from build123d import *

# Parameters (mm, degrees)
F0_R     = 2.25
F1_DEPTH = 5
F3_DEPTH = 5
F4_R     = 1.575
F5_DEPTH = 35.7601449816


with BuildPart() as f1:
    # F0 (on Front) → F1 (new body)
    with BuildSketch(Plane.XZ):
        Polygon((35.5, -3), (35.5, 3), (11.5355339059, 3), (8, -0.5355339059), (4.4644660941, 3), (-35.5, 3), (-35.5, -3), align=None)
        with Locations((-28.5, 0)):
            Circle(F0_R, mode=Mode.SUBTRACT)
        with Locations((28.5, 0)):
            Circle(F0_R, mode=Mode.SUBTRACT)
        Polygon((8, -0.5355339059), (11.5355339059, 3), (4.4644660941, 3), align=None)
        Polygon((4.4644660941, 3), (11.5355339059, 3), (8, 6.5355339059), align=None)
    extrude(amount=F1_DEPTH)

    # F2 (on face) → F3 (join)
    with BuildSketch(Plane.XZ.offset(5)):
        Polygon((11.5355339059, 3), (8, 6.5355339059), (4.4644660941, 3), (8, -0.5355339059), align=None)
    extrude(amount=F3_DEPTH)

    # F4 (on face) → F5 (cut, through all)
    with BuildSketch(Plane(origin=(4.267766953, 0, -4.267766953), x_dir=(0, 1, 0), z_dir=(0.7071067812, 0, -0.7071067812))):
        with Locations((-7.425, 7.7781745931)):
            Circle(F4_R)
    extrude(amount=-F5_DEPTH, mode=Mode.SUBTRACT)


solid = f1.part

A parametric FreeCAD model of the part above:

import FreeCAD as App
import Part
import Sketcher
from FreeCAD import Vector

doc = App.newDocument("Part")
body = doc.addObject("PartDesign::Body", "Body")

# Sketch on XZ plane
sketch1 = body.newObject("Sketcher::SketchObject", "Sketch")
sketch1.AttachmentSupport = (doc.getObject("XZ_Plane"), [""])
sketch1.MapMode = "FlatFace"
sketch1.addGeometry(Part.LineSegment(Vector(35.5, -3, 0), Vector(35.5, 3, 0)), False)
sketch1.addGeometry(Part.LineSegment(Vector(35.5, 3, 0), Vector(11.5, 3, 0)), False)
sketch1.addGeometry(Part.LineSegment(Vector(11.5, 3, 0), Vector(8, 6.5, 0)), False)
sketch1.addGeometry(Part.LineSegment(Vector(8, 6.5, 0), Vector(4.5, 3, 0)), False)
sketch1.addGeometry(Part.LineSegment(Vector(4.5, 3, 0), Vector(-35.5, 3, 0)), False)
sketch1.addGeometry(Part.LineSegment(Vector(-35.5, 3, 0), Vector(-35.5, -3, 0)), False)
sketch1.addGeometry(Part.LineSegment(Vector(-35.5, -3, 0), Vector(35.5, -3, 0)), False)
sketch1.addGeometry(Part.Circle(Vector(-28.5, 0, 0), Vector(0, 0, 1), 2.2), False)
sketch1.addGeometry(Part.Circle(Vector(28.5, 0, 0), Vector(0, 0, 1), 2.2), False)
sketch1.addConstraint(Sketcher.Constraint("Coincident", 0, 2, 1, 1))
sketch1.addConstraint(Sketcher.Constraint("Coincident", 1, 2, 2, 1))
sketch1.addConstraint(Sketcher.Constraint("Coincident", 2, 2, 3, 1))
sketch1.addConstraint(Sketcher.Constraint("Coincident", 3, 2, 4, 1))
sketch1.addConstraint(Sketcher.Constraint("Coincident", 4, 2, 5, 1))
sketch1.addConstraint(Sketcher.Constraint("Coincident", 5, 2, 6, 1))
sketch1.addConstraint(Sketcher.Constraint("Coincident", 6, 2, 0, 1))
sketch1.addConstraint(Sketcher.Constraint("Vertical", 0))
sketch1.addConstraint(Sketcher.Constraint("Horizontal", 1))
sketch1.addConstraint(Sketcher.Constraint("Horizontal", 4))
sketch1.addConstraint(Sketcher.Constraint("Vertical", 5))
sketch1.addConstraint(Sketcher.Constraint("Horizontal", 6))
sketch1.addConstraint(Sketcher.Constraint("Equal", 7, 8))
sketch1.addConstraint(Sketcher.Constraint("Symmetric", 7, 3, 8, 3, -1, 1))
sketch1.addConstraint(Sketcher.Constraint("Symmetric", 0, 2, 5, 2, -1, 1))
sketch1.addConstraint(Sketcher.Constraint("PointOnObject", 7, 3, -1))
sketch1.addConstraint(Sketcher.Constraint("Perpendicular", 2, 3))
sketch1.addConstraint(Sketcher.Constraint("Horizontal", 1, 2, 3, 2))
sketch1.addConstraint(Sketcher.Constraint("Equal", 2, 3))
sketch1.addConstraint(Sketcher.Constraint("Diameter", 7, 4.5))
sketch1.addConstraint(Sketcher.Constraint("DistanceX", 6, 1, 6, 2, 71.0))
sketch1.addConstraint(Sketcher.Constraint("DistanceY", 0, 1, 0, 2, 6.0))
sketch1.addConstraint(Sketcher.Constraint("Distance", 2, 5.0))
sketch1.addConstraint(Sketcher.Constraint("DistanceX", -1, 1, 2, 2, 8.0))
sketch1.addConstraint(Sketcher.Constraint("DistanceX", 7, 3, 8, 3, 57.0))
pad1 = body.newObject("PartDesign::Pad", "Pad")
pad1.Profile = sketch1
pad1.Length = 5

# Sketch on XZ plane
sketch2 = body.newObject("Sketcher::SketchObject", "Sketch001")
sketch2.AttachmentSupport = (doc.getObject("XZ_Plane"), [""])
sketch2.MapMode = "FlatFace"
sketch2.AttachmentOffset = App.Placement(Vector(0, 0, 5), App.Rotation())
sketch2.addGeometry(Part.LineSegment(Vector(12, 3, 0), Vector(8, 7, 0)), False)
sketch2.addGeometry(Part.LineSegment(Vector(8, 7, 0), Vector(4, 3, 0)), False)
sketch2.addGeometry(Part.LineSegment(Vector(4, 3, 0), Vector(8, -1, 0)), False)
sketch2.addGeometry(Part.LineSegment(Vector(8, -1, 0), Vector(12, 3, 0)), False)
sketch2.addConstraint(Sketcher.Constraint("Coincident", 0, 2, 1, 1))
sketch2.addConstraint(Sketcher.Constraint("Coincident", 1, 2, 2, 1))
sketch2.addConstraint(Sketcher.Constraint("Coincident", 2, 2, 3, 1))
sketch2.addConstraint(Sketcher.Constraint("Coincident", 3, 2, 0, 1))
sketch2.addConstraint(Sketcher.Constraint("Perpendicular", 0, 1))
sketch2.addConstraint(Sketcher.Constraint("Perpendicular", 1, 2))
sketch2.addConstraint(Sketcher.Constraint("Perpendicular", 2, 3))
sketch2.addConstraint(Sketcher.Constraint("Horizontal", 1, 2, 3, 2))
sketch2.addConstraint(Sketcher.Constraint("Vertical", 0, 2, 2, 2))
sketch2.addConstraint(Sketcher.Constraint("Distance", 0, 5.0))
sketch2.addConstraint(Sketcher.Constraint("DistanceX", -1, 1, 0, 2, 8.0))
sketch2.addConstraint(Sketcher.Constraint("DistanceY", -1, 1, 1, 2, 3.0))
pad2 = body.newObject("PartDesign::Pad", "Pad001")
pad2.Profile = sketch2
pad2.Length = 5

# Sketch on an angled plane
sketch3 = body.newObject("Sketcher::SketchObject", "Sketch002")
sketch3.Placement = App.Placement(Vector(4.267767, 0, -4.267767), App.Rotation(Vector(0, 1, 0), Vector(0.707106781, 0, 0.707106781), Vector(0.707106781, 0, -0.707106781), "ZXY"))
sketch3.addGeometry(Part.Circle(Vector(-7.4, 7.8, 0), Vector(0, 0, 1), 1.6), False)
sketch3.addConstraint(Sketcher.Constraint("Diameter", 0, 3.15))
sketch3.addConstraint(Sketcher.Constraint("DistanceX", 0, 3, -1, 1, 7.425))
sketch3.addConstraint(Sketcher.Constraint("DistanceY", -1, 1, 0, 3, 7.778175))
pocket1 = body.newObject("PartDesign::Pocket", "Pocket")
pocket1.Profile = sketch3
pocket1.Type = "ThroughAll"

doc.recompute()
